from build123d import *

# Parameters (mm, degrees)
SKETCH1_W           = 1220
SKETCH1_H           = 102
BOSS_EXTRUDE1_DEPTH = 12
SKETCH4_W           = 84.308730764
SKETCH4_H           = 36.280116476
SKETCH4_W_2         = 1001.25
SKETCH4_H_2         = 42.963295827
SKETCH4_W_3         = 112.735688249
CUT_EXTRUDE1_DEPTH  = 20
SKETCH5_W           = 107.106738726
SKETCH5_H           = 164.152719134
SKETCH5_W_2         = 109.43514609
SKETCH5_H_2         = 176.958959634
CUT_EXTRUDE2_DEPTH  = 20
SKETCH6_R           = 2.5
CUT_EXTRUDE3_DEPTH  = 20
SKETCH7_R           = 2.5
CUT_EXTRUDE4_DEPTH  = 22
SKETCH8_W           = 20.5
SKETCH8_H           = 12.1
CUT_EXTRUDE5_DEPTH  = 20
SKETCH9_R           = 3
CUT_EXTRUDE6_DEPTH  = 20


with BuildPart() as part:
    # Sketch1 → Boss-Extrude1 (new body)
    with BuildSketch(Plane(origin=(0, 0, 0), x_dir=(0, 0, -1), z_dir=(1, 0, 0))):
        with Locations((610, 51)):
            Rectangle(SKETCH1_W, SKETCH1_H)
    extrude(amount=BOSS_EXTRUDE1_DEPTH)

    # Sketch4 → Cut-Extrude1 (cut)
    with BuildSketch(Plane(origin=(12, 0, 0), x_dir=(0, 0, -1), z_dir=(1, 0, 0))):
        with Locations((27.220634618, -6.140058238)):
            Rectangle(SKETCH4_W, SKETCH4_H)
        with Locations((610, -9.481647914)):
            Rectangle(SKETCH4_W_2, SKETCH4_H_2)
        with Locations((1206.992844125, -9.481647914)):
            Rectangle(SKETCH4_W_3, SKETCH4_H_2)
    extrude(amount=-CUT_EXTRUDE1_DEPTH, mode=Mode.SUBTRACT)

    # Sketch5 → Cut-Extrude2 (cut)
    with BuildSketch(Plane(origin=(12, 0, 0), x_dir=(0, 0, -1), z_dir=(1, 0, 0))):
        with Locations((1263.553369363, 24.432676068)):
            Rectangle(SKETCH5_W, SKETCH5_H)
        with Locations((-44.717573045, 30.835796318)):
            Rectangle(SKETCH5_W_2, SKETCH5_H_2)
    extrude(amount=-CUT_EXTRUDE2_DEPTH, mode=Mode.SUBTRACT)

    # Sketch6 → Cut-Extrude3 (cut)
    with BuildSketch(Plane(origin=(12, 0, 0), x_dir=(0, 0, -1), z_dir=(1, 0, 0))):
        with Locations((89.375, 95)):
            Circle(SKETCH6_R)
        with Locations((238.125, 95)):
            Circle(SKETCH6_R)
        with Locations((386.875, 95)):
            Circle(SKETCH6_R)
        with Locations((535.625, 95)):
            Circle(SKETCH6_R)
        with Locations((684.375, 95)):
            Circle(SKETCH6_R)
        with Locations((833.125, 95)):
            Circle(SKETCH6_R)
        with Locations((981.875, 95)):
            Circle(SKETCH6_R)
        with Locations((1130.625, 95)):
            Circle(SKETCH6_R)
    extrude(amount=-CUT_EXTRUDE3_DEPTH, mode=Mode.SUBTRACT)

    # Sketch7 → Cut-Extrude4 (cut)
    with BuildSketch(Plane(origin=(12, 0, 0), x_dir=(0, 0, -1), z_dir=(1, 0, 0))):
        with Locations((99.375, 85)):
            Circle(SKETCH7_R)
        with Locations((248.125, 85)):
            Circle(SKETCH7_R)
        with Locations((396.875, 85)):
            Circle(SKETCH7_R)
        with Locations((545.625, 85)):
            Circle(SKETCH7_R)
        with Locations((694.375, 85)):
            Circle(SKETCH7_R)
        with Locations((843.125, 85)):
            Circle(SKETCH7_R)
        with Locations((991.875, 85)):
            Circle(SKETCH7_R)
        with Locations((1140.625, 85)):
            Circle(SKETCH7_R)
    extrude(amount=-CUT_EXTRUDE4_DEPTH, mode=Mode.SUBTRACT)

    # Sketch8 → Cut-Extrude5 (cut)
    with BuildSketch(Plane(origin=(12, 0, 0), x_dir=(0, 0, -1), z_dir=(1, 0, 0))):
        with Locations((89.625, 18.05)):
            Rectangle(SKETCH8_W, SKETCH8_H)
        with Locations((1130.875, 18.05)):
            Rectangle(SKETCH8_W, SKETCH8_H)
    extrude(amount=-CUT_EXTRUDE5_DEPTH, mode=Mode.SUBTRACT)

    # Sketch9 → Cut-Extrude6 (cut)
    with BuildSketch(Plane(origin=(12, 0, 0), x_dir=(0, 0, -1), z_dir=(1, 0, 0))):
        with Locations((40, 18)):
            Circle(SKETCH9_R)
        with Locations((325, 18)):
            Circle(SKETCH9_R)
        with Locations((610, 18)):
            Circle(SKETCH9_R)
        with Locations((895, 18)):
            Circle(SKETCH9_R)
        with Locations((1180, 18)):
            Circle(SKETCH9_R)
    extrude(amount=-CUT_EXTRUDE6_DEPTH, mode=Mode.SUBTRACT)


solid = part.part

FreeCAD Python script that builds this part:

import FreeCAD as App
import Part
import Sketcher
Q = App.Units.Quantity

doc = App.newDocument("Part")
body = doc.addObject("PartDesign::Body", "Body")

# Sketch on YZ plane
sketch1 = doc.addObject("Sketcher::SketchObject", "Sketch")
body.addObject(sketch1)
sketch1.AttachmentSupport = (doc.YZ_Plane, [""])
sketch1.MapMode = "FlatFace"
sketch1.addGeometry(Part.LineSegment(App.Vector(102, 0, 0), App.Vector(0, 0, 0)), False)
sketch1.addGeometry(Part.LineSegment(App.Vector(0, 0, 0), App.Vector(0, -1220, 0)), False)
sketch1.addGeometry(Part.LineSegment(App.Vector(0, -1220, 0), App.Vector(102, -1220, 0)), False)
sketch1.addGeometry(Part.LineSegment(App.Vector(102, -1220, 0), App.Vector(102, 0, 0)), False)
sketch1.addConstraint(Sketcher.Constraint("Coincident", 0, 2, 1, 1))
sketch1.addConstraint(Sketcher.Constraint("Coincident", 1, 2, 2, 1))
sketch1.addConstraint(Sketcher.Constraint("Coincident", 2, 2, 3, 1))
sketch1.addConstraint(Sketcher.Constraint("Coincident", 3, 2, 0, 1))
sketch1.addConstraint(Sketcher.Constraint("Horizontal", 0))
sketch1.addConstraint(Sketcher.Constraint("Vertical", 1))
sketch1.addConstraint(Sketcher.Constraint("Horizontal", 2))
sketch1.addConstraint(Sketcher.Constraint("Vertical", 3))
sketch1.addConstraint(Sketcher.Constraint("Coincident", 0, 2, -1, 1))
sketch1.addConstraint(Sketcher.Constraint("DistanceX", 0, 2, 0, 1, Q("102 mm")))
sketch1.addConstraint(Sketcher.Constraint("DistanceY", 1, 2, 1, 1, Q("1220 mm")))
pad1 = doc.addObject("PartDesign::Pad", "Pad")
body.addObject(pad1)
pad1.Profile = sketch1
pad1.Length = 12

# Sketch on YZ plane
sketch2 = doc.addObject("Sketcher::SketchObject", "Sketch001")
body.addObject(sketch2)
sketch2.AttachmentSupport = (doc.YZ_Plane, [""])
sketch2.MapMode = "FlatFace"
sketch2.AttachmentOffset = App.Placement(App.Vector(0, 0, 12), App.Rotation())
sketch2.addGeometry(Part.LineSegment(App.Vector(12, 14.933731, 0), App.Vector(-24.280116, 14.933731, 0)), False)
sketch2.addGeometry(Part.LineSegment(App.Vector(-24.280116, 14.933731, 0), App.Vector(-24.280116, -69.375, 0)), False)
sketch2.addGeometry(Part.LineSegment(App.Vector(-24.280116, -69.375, 0), App.Vector(12, -69.375, 0)), False)
sketch2.addGeometry(Part.LineSegment(App.Vector(12, -69.375, 0), App.Vector(12, 14.933731, 0)), False)
sketch2.addGeometry(Part.LineSegment(App.Vector(12, -109.375, 0), App.Vector(-30.963296, -109.375, 0)), False)
sketch2.addGeometry(Part.LineSegment(App.Vector(-30.963296, -109.375, 0), App.Vector(-30.963296, -1110.625, 0)), False)
sketch2.addGeometry(Part.LineSegment(App.Vector(-30.963296, -1110.625, 0), App.Vector(12, -1110.625, 0)), False)
sketch2.addGeometry(Part.LineSegment(App.Vector(12, -1110.625, 0), App.Vector(12, -109.375, 0)), False)
sketch2.addGeometry(Part.LineSegment(App.Vector(12, -1150.625, 0), App.Vector(-30.963296, -1150.625, 0)), False)
sketch2.addGeometry(Part.LineSegment(App.Vector(-30.963296, -1150.625, 0), App.Vector(-30.963296, -1263.360688, 0)), False)
sketch2.addGeometry(Part.LineSegment(App.Vector(-30.963296, -1263.360688, 0), App.Vector(12, -1263.360688, 0)), False)
sketch2.addGeometry(Part.LineSegment(App.Vector(12, -1263.360688, 0), App.Vector(12, -1150.625, 0)), False)
sketch2.addConstraint(Sketcher.Constraint("Coincident", 0, 2, 1, 1))
sketch2.addConstraint(Sketcher.Constraint("Coincident", 1, 2, 2, 1))
sketch2.addConstraint(Sketcher.Constraint("Coincident", 2, 2, 3, 1))
sketch2.addConstraint(Sketcher.Constraint("Coincident", 3, 2, 0, 1))
sketch2.addConstraint(Sketcher.Constraint("Coincident", 4, 2, 5, 1))
sketch2.addConstraint(Sketcher.Constraint("Coincident", 5, 2, 6, 1))
sketch2.addConstraint(Sketcher.Constraint("Coincident", 6, 2, 7, 1))
sketch2.addConstraint(Sketcher.Constraint("Coincident", 7, 2, 4, 1))
sketch2.addConstraint(Sketcher.Constraint("Coincident", 8, 2, 9, 1))
sketch2.addConstraint(Sketcher.Constraint("Coincident", 9, 2, 10, 1))
sketch2.addConstraint(Sketcher.Constraint("Coincident", 10, 2, 11, 1))
sketch2.addConstraint(Sketcher.Constraint("Coincident", 11, 2, 8, 1))
sketch2.addConstraint(Sketcher.Constraint("Horizontal", 0))
sketch2.addConstraint(Sketcher.Constraint("Vertical", 1))
sketch2.addConstraint(Sketcher.Constraint("Horizontal", 2))
sketch2.addConstraint(Sketcher.Constraint("Vertical", 3))
sketch2.addConstraint(Sketcher.Constraint("Horizontal", 4))
sketch2.addConstraint(Sketcher.Constraint("Vertical", 5))
sketch2.addConstraint(Sketcher.Constraint("Horizontal", 6))
sketch2.addConstraint(Sketcher.Constraint("Vertical", 7))
sketch2.addConstraint(Sketcher.Constraint("Horizontal", 8))
sketch2.addConstraint(Sketcher.Constraint("Vertical", 9))
sketch2.addConstraint(Sketcher.Constraint("Horizontal", 10))
sketch2.addConstraint(Sketcher.Constraint("Vertical", 11))
sketch2.addConstraint(Sketcher.Constraint("Vertical", 3, 2, 6, 2))
sketch2.addConstraint(Sketcher.Constraint("Vertical", 5, 2, 8, 2))
sketch2.addConstraint(Sketcher.Constraint("Vertical", 7, 2, 10, 2))
sketch2.addConstraint(Sketcher.Constraint("DistanceX", -1, 1, 2, 2, Q("12 mm")))
sketch2.addConstraint(Sketcher.Constraint("DistanceY", 4, 2, 1, 2, Q("40 mm")))
sketch2.addConstraint(Sketcher.Constraint("DistanceY", 8, 2, 5, 2, Q("40 mm")))
sketch2.addConstraint(Sketcher.Constraint("DistanceY", 5, 2, 5, 1, Q("1001.25 mm")))
sketch2.addConstraint(Sketcher.Constraint("DistanceY", 1, 2, -1, 1, Q("69.375 mm")))
sketch2.addConstraint(Sketcher.Constraint("DistanceY", 1, 2, 1, 1, Q("84.308731 mm")))
sketch2.addConstraint(Sketcher.Constraint("DistanceY", 9, 2, 9, 1, Q("112.735688 mm")))
sketch2.addConstraint(Sketcher.Constraint("DistanceX", 0, 2, 0, 1, Q("36.280116 mm")))
sketch2.addConstraint(Sketcher.Constraint("DistanceX", 4, 2, 4, 1, Q("42.963296 mm")))
pocket1 = doc.addObject("PartDesign::Pocket", "Pocket")
body.addObject(pocket1)
pocket1.Profile = sketch2
pocket1.Length = 20

# Sketch on YZ plane
sketch3 = doc.addObject("Sketcher::SketchObject", "Sketch002")
body.addObject(sketch3)
sketch3.AttachmentSupport = (doc.YZ_Plane, [""])
sketch3.MapMode = "FlatFace"
sketch3.AttachmentOffset = App.Placement(App.Vector(0, 0, 12), App.Rotation())
sketch3.addGeometry(Part.LineSegment(App.Vector(106.509036, -1210, 0), App.Vector(-57.643683, -1210, 0)), False)
sketch3.addGeometry(Part.LineSegment(App.Vector(-57.643683, -1210, 0), App.Vector(-57.643683, -1317.106739, 0)), False)
sketch3.addGeometry(Part.LineSegment(App.Vector(-57.643683, -1317.106739, 0), App.Vector(106.509036, -1317.106739, 0)), False)
sketch3.addGeometry(Part.LineSegment(App.Vector(106.509036, -1317.106739, 0), App.Vector(106.509036, -1210, 0)), False)
sketch3.addGeometry(Part.LineSegment(App.Vector(119.315276, 99.435146, 0), App.Vector(-57.643683, 99.435146, 0)), False)
sketch3.addGeometry(Part.LineSegment(App.Vector(-57.643683, 99.435146, 0), App.Vector(-57.643683, -10, 0)), False)
sketch3.addGeometry(Part.LineSegment(App.Vector(-57.643683, -10, 0), App.Vector(119.315276, -10, 0)), False)
sketch3.addGeometry(Part.LineSegment(App.Vector(119.315276, -10, 0), App.Vector(119.315276, 99.435146, 0)), False)
sketch3.addConstraint(Sketcher.Constraint("Coincident", 0, 2, 1, 1))
sketch3.addConstraint(Sketcher.Constraint("Coincident", 1, 2, 2, 1))
sketch3.addConstraint(Sketcher.Constraint("Coincident", 2, 2, 3, 1))
sketch3.addConstraint(Sketcher.Constraint("Coincident", 3, 2, 0, 1))
sketch3.addConstraint(Sketcher.Constraint("Coincident", 4, 2, 5, 1))
sketch3.addConstraint(Sketcher.Constraint("Coincident", 5, 2, 6, 1))
sketch3.addConstraint(Sketcher.Constraint("Coincident", 6, 2, 7, 1))
sketch3.addConstraint(Sketcher.Constraint("Coincident", 7, 2, 4, 1))
sketch3.addConstraint(Sketcher.Constraint("Horizontal", 0))
sketch3.addConstraint(Sketcher.Constraint("Vertical", 1))
sketch3.addConstraint(Sketcher.Constraint("Horizontal", 2))
sketch3.addConstraint(Sketcher.Constraint("Vertical", 3))
sketch3.addConstraint(Sketcher.Constraint("Horizontal", 4))
sketch3.addConstraint(Sketcher.Constraint("Vertical", 5))
sketch3.addConstraint(Sketcher.Constraint("Horizontal", 6))
sketch3.addConstraint(Sketcher.Constraint("Vertical", 7))
sketch3.addConstraint(Sketcher.Constraint("Vertical", 1, 2, 4, 2))
sketch3.addConstraint(Sketcher.Constraint("DistanceY", 0, 2, -1, 1, Q("1210 mm")))
sketch3.addConstraint(Sketcher.Constraint("DistanceY", 5, 2, -1, 1, Q("10 mm")))
sketch3.addConstraint(Sketcher.Constraint("DistanceX", 0, 2, 0, 1, Q("164.152719 mm")))
sketch3.addConstraint(Sketcher.Constraint("DistanceX", 4, 2, 4, 1, Q("176.95896 mm")))
sketch3.addConstraint(Sketcher.Constraint("DistanceY", 1, 2, 1, 1, Q("107.106739 mm")))
sketch3.addConstraint(Sketcher.Constraint("DistanceY", 5, 2, 5, 1, Q("109.435146 mm")))
sketch3.addConstraint(Sketcher.Constraint("DistanceX", 0, 2, -1, 1, Q("57.643683 mm")))
pocket2 = doc.addObject("PartDesign::Pocket", "Pocket001")
body.addObject(pocket2)
pocket2.Profile = sketch3
pocket2.Length = 20

# Sketch on YZ plane
sketch4 = doc.addObject("Sketcher::SketchObject", "Sketch003")
body.addObject(sketch4)
sketch4.AttachmentSupport = (doc.YZ_Plane, [""])
sketch4.MapMode = "FlatFace"
sketch4.AttachmentOffset = App.Placement(App.Vector(0, 0, 12), App.Rotation())
sketch4.addGeometry(Part.Circle(App.Vector(95, -89.375, 0), App.Vector(0, 0, 1), 2.5), False)
sketch4.addGeometry(Part.Circle(App.Vector(95, -238.125, 0), App.Vector(0, 0, 1), 2.5), False)
sketch4.addGeometry(Part.Circle(App.Vector(95, -386.875, 0), App.Vector(0, 0, 1), 2.5), False)
sketch4.addGeometry(Part.Circle(App.Vector(95, -535.625, 0), App.Vector(0, 0, 1), 2.5), False)
sketch4.addGeometry(Part.Circle(App.Vector(95, -684.375, 0), App.Vector(0, 0, 1), 2.5), False)
sketch4.addGeometry(Part.Circle(App.Vector(95, -833.125, 0), App.Vector(0, 0, 1), 2.5), False)
sketch4.addGeometry(Part.Circle(App.Vector(95, -981.875, 0), App.Vector(0, 0, 1), 2.5), False)
sketch4.addGeometry(Part.Circle(App.Vector(95, -1130.625, 0), App.Vector(0, 0, 1), 2.5), False)
sketch4.addConstraint(Sketcher.Constraint("Equal", 0, 1))
sketch4.addConstraint(Sketcher.Constraint("Equal", 1, 2))
sketch4.addConstraint(Sketcher.Constraint("Equal", 2, 3))
sketch4.addConstraint(Sketcher.Constraint("Equal", 3, 4))
sketch4.addConstraint(Sketcher.Constraint("Equal", 4, 5))
sketch4.addConstraint(Sketcher.Constraint("Equal", 5, 6))
sketch4.addConstraint(Sketcher.Constraint("Equal", 6, 7))
sketch4.addConstraint(Sketcher.Constraint("Vertical", 0, 3, 1, 3))
sketch4.addConstraint(Sketcher.Constraint("Vertical", 1, 3, 2, 3))
sketch4.addConstraint(Sketcher.Constraint("Vertical", 2, 3, 3, 3))
sketch4.addConstraint(Sketcher.Constraint("Vertical", 3, 3, 4, 3))
sketch4.addConstraint(Sketcher.Constraint("Vertical", 4, 3, 5, 3))
sketch4.addConstraint(Sketcher.Constraint("Vertical", 5, 3, 6, 3))
sketch4.addConstraint(Sketcher.Constraint("Vertical", 6, 3, 7, 3))
sketch4.addConstraint(Sketcher.Constraint("Diameter", 0, Q("5 mm")))
sketch4.addConstraint(Sketcher.Constraint("DistanceX", -1, 1, 0, 3, Q("95 mm")))
sketch4.addConstraint(Sketcher.Constraint("DistanceY", 4, 3, 0, 3, Q("595 mm")))
sketch4.addConstraint(Sketcher.Constraint("DistanceY", 5, 3, 1, 3, Q("595 mm")))
sketch4.addConstraint(Sketcher.Constraint("DistanceY", 6, 3, 2, 3, Q("595 mm")))
sketch4.addConstraint(Sketcher.Constraint("DistanceY", 7, 3, 3, 3, Q("595 mm")))
sketch4.addConstraint(Sketcher.Constraint("DistanceY", 2, 3, 0, 3, Q("297.5 mm")))
sketch4.addConstraint(Sketcher.Constraint("DistanceY", 3, 3, 1, 3, Q("297.5 mm")))
sketch4.addConstraint(Sketcher.Constraint("DistanceY", 1, 3, 0, 3, Q("148.75 mm")))
sketch4.addConstraint(Sketcher.Constraint("DistanceY", 0, 3, -1, 1, Q("89.375 mm")))
pocket3 = doc.addObject("PartDesign::Pocket", "Pocket002")
body.addObject(pocket3)
pocket3.Profile = sketch4
pocket3.Length = 20

# Sketch on YZ plane
sketch5 = doc.addObject("Sketcher::SketchObject", "Sketch004")
body.addObject(sketch5)
sketch5.AttachmentSupport = (doc.YZ_Plane, [""])
sketch5.MapMode = "FlatFace"
sketch5.AttachmentOffset = App.Placement(App.Vector(0, 0, 12), App.Rotation())
sketch5.addGeometry(Part.Circle(App.Vector(85, -99.375, 0), App.Vector(0, 0, 1), 2.5), False)
sketch5.addGeometry(Part.Circle(App.Vector(85, -248.125, 0), App.Vector(0, 0, 1), 2.5), False)
sketch5.addGeometry(Part.Circle(App.Vector(85, -396.875, 0), App.Vector(0, 0, 1), 2.5), False)
sketch5.addGeometry(Part.Circle(App.Vector(85, -545.625, 0), App.Vector(0, 0, 1), 2.5), False)
sketch5.addGeometry(Part.Circle(App.Vector(85, -694.375, 0), App.Vector(0, 0, 1), 2.5), False)
sketch5.addGeometry(Part.Circle(App.Vector(85, -843.125, 0), App.Vector(0, 0, 1), 2.5), False)
sketch5.addGeometry(Part.Circle(App.Vector(85, -991.875, 0), App.Vector(0, 0, 1), 2.5), False)
sketch5.addGeometry(Part.Circle(App.Vector(85, -1140.625, 0), App.Vector(0, 0, 1), 2.5), False)
sketch5.addConstraint(Sketcher.Constraint("Equal", 0, 1))
sketch5.addConstraint(Sketcher.Constraint("Equal", 1, 2))
sketch5.addConstraint(Sketcher.Constraint("Equal", 2, 3))
sketch5.addConstraint(Sketcher.Constraint("Equal", 3, 4))
sketch5.addConstraint(Sketcher.Constraint("Equal", 4, 5))
sketch5.addConstraint(Sketcher.Constraint("Equal", 5, 6))
sketch5.addConstraint(Sketcher.Constraint("Equal", 6, 7))
sketch5.addConstraint(Sketcher.Constraint("Vertical", 0, 3, 1, 3))
sketch5.addConstraint(Sketcher.Constraint("Vertical", 1, 3, 2, 3))
sketch5.addConstraint(Sketcher.Constraint("Vertical", 2, 3, 3, 3))
sketch5.addConstraint(Sketcher.Constraint("Vertical", 3, 3, 4, 3))
sketch5.addConstraint(Sketcher.Constraint("Vertical", 4, 3, 5, 3))
sketch5.addConstraint(Sketcher.Constraint("Vertical", 5, 3, 6, 3))
sketch5.addConstraint(Sketcher.Constraint("Vertical", 6, 3, 7, 3))
sketch5.addConstraint(Sketcher.Constraint("Diameter", 0, Q("5 mm")))
sketch5.addConstraint(Sketcher.Constraint("DistanceX", -1, 1, 0, 3, Q("85 mm")))
sketch5.addConstraint(Sketcher.Constraint("DistanceY", 4, 3, 0, 3, Q("595 mm")))
sketch5.addConstraint(Sketcher.Constraint("DistanceY", 5, 3, 1, 3, Q("595 mm")))
sketch5.addConstraint(Sketcher.Constraint("DistanceY", 6, 3, 2, 3, Q("595 mm")))
sketch5.addConstraint(Sketcher.Constraint("DistanceY", 7, 3, 3, 3, Q("595 mm")))
sketch5.addConstraint(Sketcher.Constraint("DistanceY", 2, 3, 0, 3, Q("297.5 mm")))
sketch5.addConstraint(Sketcher.Constraint("DistanceY", 3, 3, 1, 3, Q("297.5 mm")))
sketch5.addConstraint(Sketcher.Constraint("DistanceY", 1, 3, 0, 3, Q("148.75 mm")))
sketch5.addConstraint(Sketcher.Constraint("DistanceY", 0, 3, -1, 1, Q("99.375 mm")))
pocket4 = doc.addObject("PartDesign::Pocket", "Pocket003")
body.addObject(pocket4)
pocket4.Profile = sketch5
pocket4.Length = 22

# Sketch on YZ plane
sketch6 = doc.addObject("Sketcher::SketchObject", "Sketch005")
body.addObject(sketch6)
sketch6.AttachmentSupport = (doc.YZ_Plane, [""])
sketch6.MapMode = "FlatFace"
sketch6.AttachmentOffset = App.Placement(App.Vector(0, 0, 12), App.Rotation())
sketch6.addGeometry(Part.LineSegment(App.Vector(24.1, -79.375, 0), App.Vector(12, -79.375, 0)), False)
sketch6.addGeometry(Part.LineSegment(App.Vector(12, -79.375, 0), App.Vector(12, -99.875, 0)), False)
sketch6.addGeometry(Part.LineSegment(App.Vector(12, -99.875, 0), App.Vector(24.1, -99.875, 0)), False)
sketch6.addGeometry(Part.LineSegment(App.Vector(24.1, -99.875, 0), App.Vector(24.1, -79.375, 0)), False)
sketch6.addGeometry(Part.LineSegment(App.Vector(24.1, -1120.625, 0), App.Vector(12, -1120.625, 0)), False)
sketch6.addGeometry(Part.LineSegment(App.Vector(12, -1120.625, 0), App.Vector(12, -1141.125, 0)), False)
sketch6.addGeometry(Part.LineSegment(App.Vector(12, -1141.125, 0), App.Vector(24.1, -1141.125, 0)), False)
sketch6.addGeometry(Part.LineSegment(App.Vector(24.1, -1141.125, 0), App.Vector(24.1, -1120.625, 0)), False)
sketch6.addConstraint(Sketcher.Constraint("Coincident", 0, 2, 1, 1))
sketch6.addConstraint(Sketcher.Constraint("Coincident", 1, 2, 2, 1))
sketch6.addConstraint(Sketcher.Constraint("Coincident", 2, 2, 3, 1))
sketch6.addConstraint(Sketcher.Constraint("Coincident", 3, 2, 0, 1))
sketch6.addConstraint(Sketcher.Constraint("Coincident", 4, 2, 5, 1))
sketch6.addConstraint(Sketcher.Constraint("Coincident", 5, 2, 6, 1))
sketch6.addConstraint(Sketcher.Constraint("Coincident", 6, 2, 7, 1))
sketch6.addConstraint(Sketcher.Constraint("Coincident", 7, 2, 4, 1))
sketch6.addConstraint(Sketcher.Constraint("Horizontal", 0))
sketch6.addConstraint(Sketcher.Constraint("Vertical", 1))
sketch6.addConstraint(Sketcher.Constraint("Horizontal", 2))
sketch6.addConstraint(Sketcher.Constraint("Vertical", 3))
sketch6.addConstraint(Sketcher.Constraint("Horizontal", 4))
sketch6.addConstraint(Sketcher.Constraint("Vertical", 5))
sketch6.addConstraint(Sketcher.Constraint("Horizontal", 6))
sketch6.addConstraint(Sketcher.Constraint("Vertical", 7))
sketch6.addConstraint(Sketcher.Constraint("Vertical", 1, 2, 4, 2))
sketch6.addConstraint(Sketcher.Constraint("Vertical", 3, 2, 6, 2))
sketch6.addConstraint(Sketcher.Constraint("Equal", 3, 5))
sketch6.addConstraint(Sketcher.Constraint("DistanceX", 0, 2, 0, 1, Q("12.1 mm")))
sketch6.addConstraint(Sketcher.Constraint("DistanceY", 1, 2, 1, 1, Q("20.5 mm")))
sketch6.addConstraint(Sketcher.Constraint("DistanceX", -1, 1, 0, 2, Q("12 mm")))
sketch6.addConstraint(Sketcher.Constraint("DistanceY", 4, 2, 1, 2, Q("1020.75 mm")))
sketch6.addConstraint(Sketcher.Constraint("DistanceY", 0, 2, -1, 1, Q("79.375 mm")))
pocket5 = doc.addObject("PartDesign::Pocket", "Pocket004")
body.addObject(pocket5)
pocket5.Profile = sketch6
pocket5.Length = 20

# Sketch on YZ plane
sketch7 = doc.addObject("Sketcher::SketchObject", "Sketch006")
body.addObject(sketch7)
sketch7.AttachmentSupport = (doc.YZ_Plane, [""])
sketch7.MapMode = "FlatFace"
sketch7.AttachmentOffset = App.Placement(App.Vector(0, 0, 12), App.Rotation())
sketch7.addGeometry(Part.Circle(App.Vector(18, -40, 0), App.Vector(0, 0, 1), 3), False)
sketch7.addGeometry(Part.Circle(App.Vector(18, -325, 0), App.Vector(0, 0, 1), 3), False)
sketch7.addGeometry(Part.Circle(App.Vector(18, -610, 0), App.Vector(0, 0, 1), 3), False)
sketch7.addGeometry(Part.Circle(App.Vector(18, -895, 0), App.Vector(0, 0, 1), 3), False)
sketch7.addGeometry(Part.Circle(App.Vector(18, -1180, 0), App.Vector(0, 0, 1), 3), False)
sketch7.addConstraint(Sketcher.Constraint("Equal", 0, 1))
sketch7.addConstraint(Sketcher.Constraint("Equal", 1, 2))
sketch7.addConstraint(Sketcher.Constraint("Equal", 2, 3))
sketch7.addConstraint(Sketcher.Constraint("Equal", 3, 4))
sketch7.addConstraint(Sketcher.Constraint("Vertical", 0, 3, 1, 3))
sketch7.addConstraint(Sketcher.Constraint("Vertical", 1, 3, 2, 3))
sketch7.addConstraint(Sketcher.Constraint("Vertical", 2, 3, 3, 3))
sketch7.addConstraint(Sketcher.Constraint("Vertical", 3, 3, 4, 3))
sketch7.addConstraint(Sketcher.Constraint("Diameter", 0, Q("6 mm")))
sketch7.addConstraint(Sketcher.Constraint("DistanceX", -1, 1, 0, 3, Q("18 mm")))
sketch7.addConstraint(Sketcher.Constraint("DistanceY", 0, 3, -1, 1, Q("40 mm")))
sketch7.addConstraint(Sketcher.Constraint("DistanceY", 1, 3, -1, 1, Q("325 mm")))
sketch7.addConstraint(Sketcher.Constraint("DistanceY", 2, 3, -1, 1, Q("610 mm")))
sketch7.addConstraint(Sketcher.Constraint("DistanceY", 3, 3, -1, 1, Q("895 mm")))
sketch7.addConstraint(Sketcher.Constraint("DistanceY", 4, 3, -1, 1, Q("1180 mm")))
pocket6 = doc.addObject("PartDesign::Pocket", "Pocket005")
body.addObject(pocket6)
pocket6.Profile = sketch7
pocket6.Length = 20

doc.recompute()
